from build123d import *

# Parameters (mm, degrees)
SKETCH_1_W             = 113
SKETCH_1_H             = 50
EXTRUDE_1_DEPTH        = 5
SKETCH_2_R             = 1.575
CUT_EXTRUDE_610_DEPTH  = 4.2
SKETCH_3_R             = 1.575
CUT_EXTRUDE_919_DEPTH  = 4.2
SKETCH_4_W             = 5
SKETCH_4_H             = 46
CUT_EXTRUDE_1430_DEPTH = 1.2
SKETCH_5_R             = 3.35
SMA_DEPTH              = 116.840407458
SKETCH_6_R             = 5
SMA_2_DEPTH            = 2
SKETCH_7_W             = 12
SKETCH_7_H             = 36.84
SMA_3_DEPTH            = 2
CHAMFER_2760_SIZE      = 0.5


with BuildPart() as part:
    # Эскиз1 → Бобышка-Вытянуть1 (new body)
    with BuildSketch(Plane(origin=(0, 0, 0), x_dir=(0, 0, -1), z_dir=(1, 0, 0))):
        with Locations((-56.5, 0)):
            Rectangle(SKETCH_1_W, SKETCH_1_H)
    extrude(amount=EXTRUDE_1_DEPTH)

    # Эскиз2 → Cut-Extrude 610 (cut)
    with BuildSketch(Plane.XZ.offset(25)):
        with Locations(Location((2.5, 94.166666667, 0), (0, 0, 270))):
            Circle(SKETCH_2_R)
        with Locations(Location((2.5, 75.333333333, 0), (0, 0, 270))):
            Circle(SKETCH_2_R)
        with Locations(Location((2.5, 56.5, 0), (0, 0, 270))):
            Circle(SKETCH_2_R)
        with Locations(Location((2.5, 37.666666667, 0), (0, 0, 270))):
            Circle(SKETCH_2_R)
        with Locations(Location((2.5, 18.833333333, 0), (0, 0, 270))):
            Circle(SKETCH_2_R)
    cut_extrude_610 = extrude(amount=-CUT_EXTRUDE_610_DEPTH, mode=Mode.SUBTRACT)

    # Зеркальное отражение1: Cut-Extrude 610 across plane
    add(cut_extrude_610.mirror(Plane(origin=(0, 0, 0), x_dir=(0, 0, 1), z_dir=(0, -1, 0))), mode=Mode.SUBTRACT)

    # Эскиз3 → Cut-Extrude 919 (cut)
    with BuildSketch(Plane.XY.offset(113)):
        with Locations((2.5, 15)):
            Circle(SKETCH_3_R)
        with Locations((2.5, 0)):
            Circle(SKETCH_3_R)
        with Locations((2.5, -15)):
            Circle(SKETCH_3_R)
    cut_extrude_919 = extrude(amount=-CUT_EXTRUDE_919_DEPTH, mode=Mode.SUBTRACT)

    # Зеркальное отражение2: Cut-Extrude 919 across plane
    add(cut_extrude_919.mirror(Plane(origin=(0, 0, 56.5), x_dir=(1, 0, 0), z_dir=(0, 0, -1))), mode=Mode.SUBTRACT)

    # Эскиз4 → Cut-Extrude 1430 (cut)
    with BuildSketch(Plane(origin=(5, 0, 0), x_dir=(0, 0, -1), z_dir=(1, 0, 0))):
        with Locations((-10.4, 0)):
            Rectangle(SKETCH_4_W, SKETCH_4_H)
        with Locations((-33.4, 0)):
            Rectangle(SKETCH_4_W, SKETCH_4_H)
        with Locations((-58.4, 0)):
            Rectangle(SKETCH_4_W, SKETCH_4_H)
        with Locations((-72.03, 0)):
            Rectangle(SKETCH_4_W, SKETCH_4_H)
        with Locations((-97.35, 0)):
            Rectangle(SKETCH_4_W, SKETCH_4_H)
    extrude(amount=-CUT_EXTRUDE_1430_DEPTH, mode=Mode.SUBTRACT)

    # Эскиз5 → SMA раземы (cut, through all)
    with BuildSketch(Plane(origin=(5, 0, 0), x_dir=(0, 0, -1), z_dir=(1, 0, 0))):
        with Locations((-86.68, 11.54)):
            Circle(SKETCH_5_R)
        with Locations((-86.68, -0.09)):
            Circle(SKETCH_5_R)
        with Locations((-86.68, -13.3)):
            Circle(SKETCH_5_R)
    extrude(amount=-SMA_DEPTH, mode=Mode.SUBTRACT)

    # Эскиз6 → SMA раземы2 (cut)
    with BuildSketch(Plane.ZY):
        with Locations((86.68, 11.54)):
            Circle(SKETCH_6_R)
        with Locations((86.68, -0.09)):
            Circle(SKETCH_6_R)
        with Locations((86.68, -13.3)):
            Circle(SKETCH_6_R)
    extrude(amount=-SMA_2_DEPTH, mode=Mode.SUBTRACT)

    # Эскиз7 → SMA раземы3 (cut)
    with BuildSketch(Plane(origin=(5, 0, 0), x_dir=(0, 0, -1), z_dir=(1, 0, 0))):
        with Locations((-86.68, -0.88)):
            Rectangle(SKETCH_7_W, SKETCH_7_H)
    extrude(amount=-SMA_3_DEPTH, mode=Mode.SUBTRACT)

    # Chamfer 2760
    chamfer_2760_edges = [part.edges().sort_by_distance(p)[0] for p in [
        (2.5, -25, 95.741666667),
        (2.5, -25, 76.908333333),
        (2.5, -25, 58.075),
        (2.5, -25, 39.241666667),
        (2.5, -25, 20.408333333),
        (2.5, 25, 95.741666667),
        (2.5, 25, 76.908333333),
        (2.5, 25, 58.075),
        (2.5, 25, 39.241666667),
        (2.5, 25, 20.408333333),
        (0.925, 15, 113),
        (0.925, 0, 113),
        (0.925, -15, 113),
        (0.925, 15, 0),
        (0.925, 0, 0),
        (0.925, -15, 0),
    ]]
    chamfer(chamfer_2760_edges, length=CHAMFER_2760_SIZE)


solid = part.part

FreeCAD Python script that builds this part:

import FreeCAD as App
import Part
import Sketcher


def edges_at(feature, points):
    """Names of the edges that pass closest to the given points."""
    edges = feature.Shape.Edges
    near = lambda p: min(range(len(edges)), key=lambda i: edges[i].distToShape(Part.Vertex(*p))[0])
    return sorted({f"Edge{near(p) + 1}" for p in points})


def add_polygon(sketch, points):
    """Adds a closed chain of lines whose ends are joined by coincident constraints."""
    first, n = sketch.GeometryCount, len(points)
    for a, b in zip(points, points[1:] + points[:1]):
        sketch.addGeometry(Part.LineSegment(App.Vector(*a, 0), App.Vector(*b, 0)), False)
    for i in range(n):
        sketch.addConstraint(Sketcher.Constraint("Coincident", first + i, 2, first + (i + 1) % n, 1))

doc = App.newDocument("Part")
body = doc.addObject("PartDesign::Body", "Body")

sketch1 = body.newObject("Sketcher::SketchObject", "Sketch")
sketch1.AttachmentSupport = (doc.getObject("YZ_Plane"), [""])
sketch1.MapMode = "FlatFace"
add_polygon(sketch1, [(25, 113), (-25, 113), (-25, 0), (25, 0)])
sketch1.addConstraint(Sketcher.Constraint("Horizontal", 0))
sketch1.addConstraint(Sketcher.Constraint("Vertical", 1))
sketch1.addConstraint(Sketcher.Constraint("Horizontal", 2))
sketch1.addConstraint(Sketcher.Constraint("Vertical", 3))
sketch1.addConstraint(Sketcher.Constraint("Symmetric", 1, 2, 2, 2, -1, 1))
sketch1.addConstraint(Sketcher.Constraint("DistanceX", 0, 2, 0, 1, 50.0))
sketch1.addConstraint(Sketcher.Constraint("DistanceY", 1, 2, 1, 1, 113.0))
pad1 = body.newObject("PartDesign::Pad", "Pad")
pad1.Profile = sketch1
pad1.Length = 5

sketch2 = body.newObject("Sketcher::SketchObject", "Sketch001")
sketch2.AttachmentSupport = (doc.getObject("XZ_Plane"), [""])
sketch2.MapMode = "FlatFace"
sketch2.AttachmentOffset = App.Placement(App.Vector(0, 0, 25), App.Rotation())
sketch2.addGeometry(Part.Circle(App.Vector(2.5, 94.2, 0), App.Vector(0, 0, 1), 1.6), False)
sketch2.addGeometry(Part.Circle(App.Vector(2.5, 75.3, 0), App.Vector(0, 0, 1), 1.6), False)
sketch2.addGeometry(Part.Circle(App.Vector(2.5, 56.5, 0), App.Vector(0, 0, 1), 1.6), False)
sketch2.addGeometry(Part.Circle(App.Vector(2.5, 37.7, 0), App.Vector(0, 0, 1), 1.6), False)
sketch2.addGeometry(Part.Circle(App.Vector(2.5, 18.8, 0), App.Vector(0, 0, 1), 1.6), False)
sketch2.addConstraint(Sketcher.Constraint("Equal", 0, 1))
sketch2.addConstraint(Sketcher.Constraint("Equal", 1, 2))
sketch2.addConstraint(Sketcher.Constraint("Equal", 2, 3))
sketch2.addConstraint(Sketcher.Constraint("Equal", 3, 4))
sketch2.addConstraint(Sketcher.Constraint("Vertical", 0, 3, 1, 3))
sketch2.addConstraint(Sketcher.Constraint("Vertical", 1, 3, 2, 3))
sketch2.addConstraint(Sketcher.Constraint("Vertical", 2, 3, 3, 3))
sketch2.addConstraint(Sketcher.Constraint("Vertical", 3, 3, 4, 3))
sketch2.addConstraint(Sketcher.Constraint("Diameter", 0, 3.15))
sketch2.addConstraint(Sketcher.Constraint("DistanceX", -1, 1, 0, 3, 2.5))
sketch2.addConstraint(Sketcher.Constraint("DistanceY", -1, 1, 2, 3, 56.5))
sketch2.addConstraint(Sketcher.Constraint("DistanceY", 3, 3, 0, 3, 56.5))
sketch2.addConstraint(Sketcher.Constraint("DistanceY", 4, 3, 1, 3, 56.5))
sketch2.addConstraint(Sketcher.Constraint("DistanceY", -1, 1, 0, 3, 94.166667))
sketch2.addConstraint(Sketcher.Constraint("DistanceY", -1, 1, 1, 3, 75.333333))
pocket1 = body.newObject("PartDesign::Pocket", "Pocket")
pocket1.Profile = sketch2
pocket1.Length = 4.2
doc.recompute()

mirrored = body.newObject("PartDesign::Mirrored", "Mirrored")
mirrored.Originals = [pocket1]
mirrored.MirrorPlane = (doc.getObject("XZ_Plane"), [""])
body.Tip = mirrored

sketch3 = body.newObject("Sketcher::SketchObject", "Sketch002")
sketch3.AttachmentSupport = (doc.getObject("XY_Plane"), [""])
sketch3.MapMode = "FlatFace"
sketch3.AttachmentOffset = App.Placement(App.Vector(0, 0, 113), App.Rotation())
sketch3.addGeometry(Part.Circle(App.Vector(2.5, 15, 0), App.Vector(0, 0, 1), 1.6), False)
sketch3.addGeometry(Part.Circle(App.Vector(2.5, 0, 0), App.Vector(0, 0, 1), 1.6), False)
sketch3.addGeometry(Part.Circle(App.Vector(2.5, -15, 0), App.Vector(0, 0, 1), 1.6), False)
sketch3.addConstraint(Sketcher.Constraint("Equal", 0, 1))
sketch3.addConstraint(Sketcher.Constraint("Equal", 1, 2))
sketch3.addConstraint(Sketcher.Constraint("Symmetric", 0, 3, 2, 3, -1))
sketch3.addConstraint(Sketcher.Constraint("PointOnObject", 1, 3, -1))
sketch3.addConstraint(Sketcher.Constraint("Vertical", 0, 3, 1, 3))
sketch3.addConstraint(Sketcher.Constraint("Diameter", 0, 3.15))
sketch3.addConstraint(Sketcher.Constraint("DistanceY", -1, 1, 0, 3, 15.0))
sketch3.addConstraint(Sketcher.Constraint("DistanceX", -1, 1, 0, 3, 2.5))
pocket2 = body.newObject("PartDesign::Pocket", "Pocket001")
pocket2.Profile = sketch3
pocket2.Length = 4.2
doc.recompute()

datumplane = body.newObject("PartDesign::Plane", "DatumPlane")
datumplane.AttachmentSupport = (doc.getObject("XY_Plane"), [""])
datumplane.MapMode = "FlatFace"
datumplane.AttachmentOffset = App.Placement(App.Vector(0, 0, 56.5), App.Rotation())
mirrored2 = body.newObject("PartDesign::Mirrored", "Mirrored001")
mirrored2.Originals = [pocket2]
mirrored2.MirrorPlane = (datumplane, [""])
body.Tip = mirrored2

sketch4 = body.newObject("Sketcher::SketchObject", "Sketch003")
sketch4.AttachmentSupport = (doc.getObject("YZ_Plane"), [""])
sketch4.MapMode = "FlatFace"
sketch4.AttachmentOffset = App.Placement(App.Vector(0, 0, 5), App.Rotation())
add_polygon(sketch4, [(23, 13), (-23, 13), (-23, 8), (23, 8)])
add_polygon(sketch4, [(23, 36), (-23, 36), (-23, 31), (23, 31)])
add_polygon(sketch4, [(23, 61), (-23, 61), (-23, 56), (23, 56)])
add_polygon(sketch4, [(23, 75), (-23, 75), (-23, 70), (23, 70)])
add_polygon(sketch4, [(23, 100), (-23, 100), (-23, 95), (23, 95)])
sketch4.addConstraint(Sketcher.Constraint("Horizontal", 0))
sketch4.addConstraint(Sketcher.Constraint("Vertical", 1))
sketch4.addConstraint(Sketcher.Constraint("Horizontal", 2))
sketch4.addConstraint(Sketcher.Constraint("Vertical", 3))
sketch4.addConstraint(Sketcher.Constraint("Horizontal", 4))
sketch4.addConstraint(Sketcher.Constraint("Vertical", 5))
sketch4.addConstraint(Sketcher.Constraint("Horizontal", 6))
sketch4.addConstraint(Sketcher.Constraint("Vertical", 7))
sketch4.addConstraint(Sketcher.Constraint("Horizontal", 8))
sketch4.addConstraint(Sketcher.Constraint("Vertical", 9))
sketch4.addConstraint(Sketcher.Constraint("Horizontal", 10))
sketch4.addConstraint(Sketcher.Constraint("Vertical", 11))
sketch4.addConstraint(Sketcher.Constraint("Horizontal", 12))
sketch4.addConstraint(Sketcher.Constraint("Vertical", 13))
sketch4.addConstraint(Sketcher.Constraint("Horizontal", 14))
sketch4.addConstraint(Sketcher.Constraint("Vertical", 15))
sketch4.addConstraint(Sketcher.Constraint("Horizontal", 16))
sketch4.addConstraint(Sketcher.Constraint("Vertical", 17))
sketch4.addConstraint(Sketcher.Constraint("Horizontal", 18))
sketch4.addConstraint(Sketcher.Constraint("Vertical", 19))
sketch4.addConstraint(Sketcher.Constraint("Vertical", 1, 2, 4, 2))
sketch4.addConstraint(Sketcher.Constraint("Vertical", 3, 2, 6, 2))
sketch4.addConstraint(Sketcher.Constraint("Vertical", 5, 2, 8, 2))
sketch4.addConstraint(Sketcher.Constraint("Vertical", 7, 2, 10, 2))
sketch4.addConstraint(Sketcher.Constraint("Vertical", 9, 2, 12, 2))
sketch4.addConstraint(Sketcher.Constraint("Vertical", 11, 2, 14, 2))
sketch4.addConstraint(Sketcher.Constraint("Vertical", 13, 2, 16, 2))
sketch4.addConstraint(Sketcher.Constraint("Vertical", 15, 2, 18, 2))
sketch4.addConstraint(Sketcher.Constraint("Equal", 3, 5))
sketch4.addConstraint(Sketcher.Constraint("Equal", 7, 9))
sketch4.addConstraint(Sketcher.Constraint("Equal", 11, 13))
sketch4.addConstraint(Sketcher.Constraint("Equal", 15, 17))
sketch4.addConstraint(Sketcher.Constraint("DistanceX", 0, 2, 0, 1, 46.0))
sketch4.addConstraint(Sketcher.Constraint("DistanceY", 1, 2, 1, 1, 5.0))
sketch4.addConstraint(Sketcher.Constraint("DistanceX", 0, 2, -1, 1, 23.0))
sketch4.addConstraint(Sketcher.Constraint("DistanceY", 0, 2, 4, 2, 23.0))
sketch4.addConstraint(Sketcher.Constraint("DistanceY", 4, 2, 8, 2, 25.0))
sketch4.addConstraint(Sketcher.Constraint("DistanceY", -1, 1, 0, 2, 12.9))
sketch4.addConstraint(Sketcher.Constraint("DistanceY", -1, 1, 12, 2, 74.53))
sketch4.addConstraint(Sketcher.Constraint("DistanceY", -1, 1, 16, 2, 99.85))
pocket3 = body.newObject("PartDesign::Pocket", "Pocket002")
pocket3.Profile = sketch4
pocket3.Length = 1.2

sketch5 = body.newObject("Sketcher::SketchObject", "Sketch004")
sketch5.AttachmentSupport = (doc.getObject("YZ_Plane"), [""])
sketch5.MapMode = "FlatFace"
sketch5.AttachmentOffset = App.Placement(App.Vector(0, 0, 5), App.Rotation())
sketch5.addGeometry(Part.Circle(App.Vector(11.5, 86.7, 0), App.Vector(0, 0, 1), 3.4), False)
sketch5.addGeometry(Part.Circle(App.Vector(-0.1, 86.7, 0), App.Vector(0, 0, 1), 3.4), False)
sketch5.addGeometry(Part.Circle(App.Vector(-13.3, 86.7, 0), App.Vector(0, 0, 1), 3.4), False)
sketch5.addConstraint(Sketcher.Constraint("Equal", 0, 1))
sketch5.addConstraint(Sketcher.Constraint("Equal", 1, 2))
sketch5.addConstraint(Sketcher.Constraint("Horizontal", 0, 3, 1, 3))
sketch5.addConstraint(Sketcher.Constraint("Horizontal", 1, 3, 2, 3))
sketch5.addConstraint(Sketcher.Constraint("Diameter", 0, 6.7))
sketch5.addConstraint(Sketcher.Constraint("DistanceX", 2, 3, -1, 1, 13.3))
sketch5.addConstraint(Sketcher.Constraint("DistanceX", -1, 1, 0, 3, 11.54))
sketch5.addConstraint(Sketcher.Constraint("DistanceY", -1, 1, 0, 3, 86.68))
sketch5.addConstraint(Sketcher.Constraint("DistanceX", 1, 3, -1, 1, 0.09))
pocket4 = body.newObject("PartDesign::Pocket", "Pocket003")
pocket4.Profile = sketch5
pocket4.Type = "ThroughAll"

sketch6 = body.newObject("Sketcher::SketchObject", "Sketch005")
sketch6.AttachmentSupport = (doc.getObject("YZ_Plane"), [""])
sketch6.MapMode = "FlatFace"
sketch6.addGeometry(Part.Circle(App.Vector(12, 87, 0), App.Vector(0, 0, 1), 5), False)
sketch6.addGeometry(Part.Circle(App.Vector(0, 87, 0), App.Vector(0, 0, 1), 5), False)
sketch6.addGeometry(Part.Circle(App.Vector(-13, 87, 0), App.Vector(0, 0, 1), 5), False)
sketch6.addConstraint(Sketcher.Constraint("Equal", 0, 1))
sketch6.addConstraint(Sketcher.Constraint("Equal", 1, 2))
sketch6.addConstraint(Sketcher.Constraint("Horizontal", 0, 3, 1, 3))
sketch6.addConstraint(Sketcher.Constraint("Horizontal", 1, 3, 2, 3))
sketch6.addConstraint(Sketcher.Constraint("Diameter", 0, 10.0))
sketch6.addConstraint(Sketcher.Constraint("DistanceX", 2, 3, -1, 1, 13.3))
sketch6.addConstraint(Sketcher.Constraint("DistanceX", -1, 1, 0, 3, 11.54))
sketch6.addConstraint(Sketcher.Constraint("DistanceY", -1, 1, 0, 3, 86.68))
sketch6.addConstraint(Sketcher.Constraint("DistanceX", 1, 3, -1, 1, 0.09))
pocket5 = body.newObject("PartDesign::Pocket", "Pocket004")
pocket5.Profile = sketch6
pocket5.Length = 2
pocket5.Reversed = True

sketch7 = body.newObject("Sketcher::SketchObject", "Sketch006")
sketch7.AttachmentSupport = (doc.getObject("YZ_Plane"), [""])
sketch7.MapMode = "FlatFace"
sketch7.AttachmentOffset = App.Placement(App.Vector(0, 0, 5), App.Rotation())
add_polygon(sketch7, [(18, 93), (-19, 93), (-19, 81), (18, 81)])
sketch7.addConstraint(Sketcher.Constraint("Horizontal", 0))
sketch7.addConstraint(Sketcher.Constraint("Vertical", 1))
sketch7.addConstraint(Sketcher.Constraint("Horizontal", 2))
sketch7.addConstraint(Sketcher.Constraint("Vertical", 3))
sketch7.addConstraint(Sketcher.Constraint("DistanceY", 1, 2, 1, 1, 12.0))
sketch7.addConstraint(Sketcher.Constraint("DistanceX", 0, 2, 0, 1, 36.84))
sketch7.addConstraint(Sketcher.Constraint("DistanceX", 0, 2, -1, 1, 19.3))
sketch7.addConstraint(Sketcher.Constraint("DistanceY", -1, 1, 0, 2, 92.68))
pocket6 = body.newObject("PartDesign::Pocket", "Pocket005")
pocket6.Profile = sketch7
pocket6.Length = 2
doc.recompute()

chamfer = body.newObject("PartDesign::Chamfer", "Chamfer")
chamfer.Base = (pocket6, edges_at(pocket6, [
    (2.5, -25, 95.742),
    (2.5, -25, 76.908),
    (2.5, -25, 58.075),
    (2.5, -25, 39.242),
    (2.5, -25, 20.408),
    (2.5, 25, 95.742),
    (2.5, 25, 76.908),
    (2.5, 25, 58.075),
    (2.5, 25, 39.242),
    (2.5, 25, 20.408),
    (0.925, 15, 113),
    (0.925, 0, 113),
    (0.925, -15, 113),
    (0.925, 15, 0),
    (0.925, 0, 0),
    (0.925, -15, 0),
]))
chamfer.Size = 0.5

doc.recompute()
